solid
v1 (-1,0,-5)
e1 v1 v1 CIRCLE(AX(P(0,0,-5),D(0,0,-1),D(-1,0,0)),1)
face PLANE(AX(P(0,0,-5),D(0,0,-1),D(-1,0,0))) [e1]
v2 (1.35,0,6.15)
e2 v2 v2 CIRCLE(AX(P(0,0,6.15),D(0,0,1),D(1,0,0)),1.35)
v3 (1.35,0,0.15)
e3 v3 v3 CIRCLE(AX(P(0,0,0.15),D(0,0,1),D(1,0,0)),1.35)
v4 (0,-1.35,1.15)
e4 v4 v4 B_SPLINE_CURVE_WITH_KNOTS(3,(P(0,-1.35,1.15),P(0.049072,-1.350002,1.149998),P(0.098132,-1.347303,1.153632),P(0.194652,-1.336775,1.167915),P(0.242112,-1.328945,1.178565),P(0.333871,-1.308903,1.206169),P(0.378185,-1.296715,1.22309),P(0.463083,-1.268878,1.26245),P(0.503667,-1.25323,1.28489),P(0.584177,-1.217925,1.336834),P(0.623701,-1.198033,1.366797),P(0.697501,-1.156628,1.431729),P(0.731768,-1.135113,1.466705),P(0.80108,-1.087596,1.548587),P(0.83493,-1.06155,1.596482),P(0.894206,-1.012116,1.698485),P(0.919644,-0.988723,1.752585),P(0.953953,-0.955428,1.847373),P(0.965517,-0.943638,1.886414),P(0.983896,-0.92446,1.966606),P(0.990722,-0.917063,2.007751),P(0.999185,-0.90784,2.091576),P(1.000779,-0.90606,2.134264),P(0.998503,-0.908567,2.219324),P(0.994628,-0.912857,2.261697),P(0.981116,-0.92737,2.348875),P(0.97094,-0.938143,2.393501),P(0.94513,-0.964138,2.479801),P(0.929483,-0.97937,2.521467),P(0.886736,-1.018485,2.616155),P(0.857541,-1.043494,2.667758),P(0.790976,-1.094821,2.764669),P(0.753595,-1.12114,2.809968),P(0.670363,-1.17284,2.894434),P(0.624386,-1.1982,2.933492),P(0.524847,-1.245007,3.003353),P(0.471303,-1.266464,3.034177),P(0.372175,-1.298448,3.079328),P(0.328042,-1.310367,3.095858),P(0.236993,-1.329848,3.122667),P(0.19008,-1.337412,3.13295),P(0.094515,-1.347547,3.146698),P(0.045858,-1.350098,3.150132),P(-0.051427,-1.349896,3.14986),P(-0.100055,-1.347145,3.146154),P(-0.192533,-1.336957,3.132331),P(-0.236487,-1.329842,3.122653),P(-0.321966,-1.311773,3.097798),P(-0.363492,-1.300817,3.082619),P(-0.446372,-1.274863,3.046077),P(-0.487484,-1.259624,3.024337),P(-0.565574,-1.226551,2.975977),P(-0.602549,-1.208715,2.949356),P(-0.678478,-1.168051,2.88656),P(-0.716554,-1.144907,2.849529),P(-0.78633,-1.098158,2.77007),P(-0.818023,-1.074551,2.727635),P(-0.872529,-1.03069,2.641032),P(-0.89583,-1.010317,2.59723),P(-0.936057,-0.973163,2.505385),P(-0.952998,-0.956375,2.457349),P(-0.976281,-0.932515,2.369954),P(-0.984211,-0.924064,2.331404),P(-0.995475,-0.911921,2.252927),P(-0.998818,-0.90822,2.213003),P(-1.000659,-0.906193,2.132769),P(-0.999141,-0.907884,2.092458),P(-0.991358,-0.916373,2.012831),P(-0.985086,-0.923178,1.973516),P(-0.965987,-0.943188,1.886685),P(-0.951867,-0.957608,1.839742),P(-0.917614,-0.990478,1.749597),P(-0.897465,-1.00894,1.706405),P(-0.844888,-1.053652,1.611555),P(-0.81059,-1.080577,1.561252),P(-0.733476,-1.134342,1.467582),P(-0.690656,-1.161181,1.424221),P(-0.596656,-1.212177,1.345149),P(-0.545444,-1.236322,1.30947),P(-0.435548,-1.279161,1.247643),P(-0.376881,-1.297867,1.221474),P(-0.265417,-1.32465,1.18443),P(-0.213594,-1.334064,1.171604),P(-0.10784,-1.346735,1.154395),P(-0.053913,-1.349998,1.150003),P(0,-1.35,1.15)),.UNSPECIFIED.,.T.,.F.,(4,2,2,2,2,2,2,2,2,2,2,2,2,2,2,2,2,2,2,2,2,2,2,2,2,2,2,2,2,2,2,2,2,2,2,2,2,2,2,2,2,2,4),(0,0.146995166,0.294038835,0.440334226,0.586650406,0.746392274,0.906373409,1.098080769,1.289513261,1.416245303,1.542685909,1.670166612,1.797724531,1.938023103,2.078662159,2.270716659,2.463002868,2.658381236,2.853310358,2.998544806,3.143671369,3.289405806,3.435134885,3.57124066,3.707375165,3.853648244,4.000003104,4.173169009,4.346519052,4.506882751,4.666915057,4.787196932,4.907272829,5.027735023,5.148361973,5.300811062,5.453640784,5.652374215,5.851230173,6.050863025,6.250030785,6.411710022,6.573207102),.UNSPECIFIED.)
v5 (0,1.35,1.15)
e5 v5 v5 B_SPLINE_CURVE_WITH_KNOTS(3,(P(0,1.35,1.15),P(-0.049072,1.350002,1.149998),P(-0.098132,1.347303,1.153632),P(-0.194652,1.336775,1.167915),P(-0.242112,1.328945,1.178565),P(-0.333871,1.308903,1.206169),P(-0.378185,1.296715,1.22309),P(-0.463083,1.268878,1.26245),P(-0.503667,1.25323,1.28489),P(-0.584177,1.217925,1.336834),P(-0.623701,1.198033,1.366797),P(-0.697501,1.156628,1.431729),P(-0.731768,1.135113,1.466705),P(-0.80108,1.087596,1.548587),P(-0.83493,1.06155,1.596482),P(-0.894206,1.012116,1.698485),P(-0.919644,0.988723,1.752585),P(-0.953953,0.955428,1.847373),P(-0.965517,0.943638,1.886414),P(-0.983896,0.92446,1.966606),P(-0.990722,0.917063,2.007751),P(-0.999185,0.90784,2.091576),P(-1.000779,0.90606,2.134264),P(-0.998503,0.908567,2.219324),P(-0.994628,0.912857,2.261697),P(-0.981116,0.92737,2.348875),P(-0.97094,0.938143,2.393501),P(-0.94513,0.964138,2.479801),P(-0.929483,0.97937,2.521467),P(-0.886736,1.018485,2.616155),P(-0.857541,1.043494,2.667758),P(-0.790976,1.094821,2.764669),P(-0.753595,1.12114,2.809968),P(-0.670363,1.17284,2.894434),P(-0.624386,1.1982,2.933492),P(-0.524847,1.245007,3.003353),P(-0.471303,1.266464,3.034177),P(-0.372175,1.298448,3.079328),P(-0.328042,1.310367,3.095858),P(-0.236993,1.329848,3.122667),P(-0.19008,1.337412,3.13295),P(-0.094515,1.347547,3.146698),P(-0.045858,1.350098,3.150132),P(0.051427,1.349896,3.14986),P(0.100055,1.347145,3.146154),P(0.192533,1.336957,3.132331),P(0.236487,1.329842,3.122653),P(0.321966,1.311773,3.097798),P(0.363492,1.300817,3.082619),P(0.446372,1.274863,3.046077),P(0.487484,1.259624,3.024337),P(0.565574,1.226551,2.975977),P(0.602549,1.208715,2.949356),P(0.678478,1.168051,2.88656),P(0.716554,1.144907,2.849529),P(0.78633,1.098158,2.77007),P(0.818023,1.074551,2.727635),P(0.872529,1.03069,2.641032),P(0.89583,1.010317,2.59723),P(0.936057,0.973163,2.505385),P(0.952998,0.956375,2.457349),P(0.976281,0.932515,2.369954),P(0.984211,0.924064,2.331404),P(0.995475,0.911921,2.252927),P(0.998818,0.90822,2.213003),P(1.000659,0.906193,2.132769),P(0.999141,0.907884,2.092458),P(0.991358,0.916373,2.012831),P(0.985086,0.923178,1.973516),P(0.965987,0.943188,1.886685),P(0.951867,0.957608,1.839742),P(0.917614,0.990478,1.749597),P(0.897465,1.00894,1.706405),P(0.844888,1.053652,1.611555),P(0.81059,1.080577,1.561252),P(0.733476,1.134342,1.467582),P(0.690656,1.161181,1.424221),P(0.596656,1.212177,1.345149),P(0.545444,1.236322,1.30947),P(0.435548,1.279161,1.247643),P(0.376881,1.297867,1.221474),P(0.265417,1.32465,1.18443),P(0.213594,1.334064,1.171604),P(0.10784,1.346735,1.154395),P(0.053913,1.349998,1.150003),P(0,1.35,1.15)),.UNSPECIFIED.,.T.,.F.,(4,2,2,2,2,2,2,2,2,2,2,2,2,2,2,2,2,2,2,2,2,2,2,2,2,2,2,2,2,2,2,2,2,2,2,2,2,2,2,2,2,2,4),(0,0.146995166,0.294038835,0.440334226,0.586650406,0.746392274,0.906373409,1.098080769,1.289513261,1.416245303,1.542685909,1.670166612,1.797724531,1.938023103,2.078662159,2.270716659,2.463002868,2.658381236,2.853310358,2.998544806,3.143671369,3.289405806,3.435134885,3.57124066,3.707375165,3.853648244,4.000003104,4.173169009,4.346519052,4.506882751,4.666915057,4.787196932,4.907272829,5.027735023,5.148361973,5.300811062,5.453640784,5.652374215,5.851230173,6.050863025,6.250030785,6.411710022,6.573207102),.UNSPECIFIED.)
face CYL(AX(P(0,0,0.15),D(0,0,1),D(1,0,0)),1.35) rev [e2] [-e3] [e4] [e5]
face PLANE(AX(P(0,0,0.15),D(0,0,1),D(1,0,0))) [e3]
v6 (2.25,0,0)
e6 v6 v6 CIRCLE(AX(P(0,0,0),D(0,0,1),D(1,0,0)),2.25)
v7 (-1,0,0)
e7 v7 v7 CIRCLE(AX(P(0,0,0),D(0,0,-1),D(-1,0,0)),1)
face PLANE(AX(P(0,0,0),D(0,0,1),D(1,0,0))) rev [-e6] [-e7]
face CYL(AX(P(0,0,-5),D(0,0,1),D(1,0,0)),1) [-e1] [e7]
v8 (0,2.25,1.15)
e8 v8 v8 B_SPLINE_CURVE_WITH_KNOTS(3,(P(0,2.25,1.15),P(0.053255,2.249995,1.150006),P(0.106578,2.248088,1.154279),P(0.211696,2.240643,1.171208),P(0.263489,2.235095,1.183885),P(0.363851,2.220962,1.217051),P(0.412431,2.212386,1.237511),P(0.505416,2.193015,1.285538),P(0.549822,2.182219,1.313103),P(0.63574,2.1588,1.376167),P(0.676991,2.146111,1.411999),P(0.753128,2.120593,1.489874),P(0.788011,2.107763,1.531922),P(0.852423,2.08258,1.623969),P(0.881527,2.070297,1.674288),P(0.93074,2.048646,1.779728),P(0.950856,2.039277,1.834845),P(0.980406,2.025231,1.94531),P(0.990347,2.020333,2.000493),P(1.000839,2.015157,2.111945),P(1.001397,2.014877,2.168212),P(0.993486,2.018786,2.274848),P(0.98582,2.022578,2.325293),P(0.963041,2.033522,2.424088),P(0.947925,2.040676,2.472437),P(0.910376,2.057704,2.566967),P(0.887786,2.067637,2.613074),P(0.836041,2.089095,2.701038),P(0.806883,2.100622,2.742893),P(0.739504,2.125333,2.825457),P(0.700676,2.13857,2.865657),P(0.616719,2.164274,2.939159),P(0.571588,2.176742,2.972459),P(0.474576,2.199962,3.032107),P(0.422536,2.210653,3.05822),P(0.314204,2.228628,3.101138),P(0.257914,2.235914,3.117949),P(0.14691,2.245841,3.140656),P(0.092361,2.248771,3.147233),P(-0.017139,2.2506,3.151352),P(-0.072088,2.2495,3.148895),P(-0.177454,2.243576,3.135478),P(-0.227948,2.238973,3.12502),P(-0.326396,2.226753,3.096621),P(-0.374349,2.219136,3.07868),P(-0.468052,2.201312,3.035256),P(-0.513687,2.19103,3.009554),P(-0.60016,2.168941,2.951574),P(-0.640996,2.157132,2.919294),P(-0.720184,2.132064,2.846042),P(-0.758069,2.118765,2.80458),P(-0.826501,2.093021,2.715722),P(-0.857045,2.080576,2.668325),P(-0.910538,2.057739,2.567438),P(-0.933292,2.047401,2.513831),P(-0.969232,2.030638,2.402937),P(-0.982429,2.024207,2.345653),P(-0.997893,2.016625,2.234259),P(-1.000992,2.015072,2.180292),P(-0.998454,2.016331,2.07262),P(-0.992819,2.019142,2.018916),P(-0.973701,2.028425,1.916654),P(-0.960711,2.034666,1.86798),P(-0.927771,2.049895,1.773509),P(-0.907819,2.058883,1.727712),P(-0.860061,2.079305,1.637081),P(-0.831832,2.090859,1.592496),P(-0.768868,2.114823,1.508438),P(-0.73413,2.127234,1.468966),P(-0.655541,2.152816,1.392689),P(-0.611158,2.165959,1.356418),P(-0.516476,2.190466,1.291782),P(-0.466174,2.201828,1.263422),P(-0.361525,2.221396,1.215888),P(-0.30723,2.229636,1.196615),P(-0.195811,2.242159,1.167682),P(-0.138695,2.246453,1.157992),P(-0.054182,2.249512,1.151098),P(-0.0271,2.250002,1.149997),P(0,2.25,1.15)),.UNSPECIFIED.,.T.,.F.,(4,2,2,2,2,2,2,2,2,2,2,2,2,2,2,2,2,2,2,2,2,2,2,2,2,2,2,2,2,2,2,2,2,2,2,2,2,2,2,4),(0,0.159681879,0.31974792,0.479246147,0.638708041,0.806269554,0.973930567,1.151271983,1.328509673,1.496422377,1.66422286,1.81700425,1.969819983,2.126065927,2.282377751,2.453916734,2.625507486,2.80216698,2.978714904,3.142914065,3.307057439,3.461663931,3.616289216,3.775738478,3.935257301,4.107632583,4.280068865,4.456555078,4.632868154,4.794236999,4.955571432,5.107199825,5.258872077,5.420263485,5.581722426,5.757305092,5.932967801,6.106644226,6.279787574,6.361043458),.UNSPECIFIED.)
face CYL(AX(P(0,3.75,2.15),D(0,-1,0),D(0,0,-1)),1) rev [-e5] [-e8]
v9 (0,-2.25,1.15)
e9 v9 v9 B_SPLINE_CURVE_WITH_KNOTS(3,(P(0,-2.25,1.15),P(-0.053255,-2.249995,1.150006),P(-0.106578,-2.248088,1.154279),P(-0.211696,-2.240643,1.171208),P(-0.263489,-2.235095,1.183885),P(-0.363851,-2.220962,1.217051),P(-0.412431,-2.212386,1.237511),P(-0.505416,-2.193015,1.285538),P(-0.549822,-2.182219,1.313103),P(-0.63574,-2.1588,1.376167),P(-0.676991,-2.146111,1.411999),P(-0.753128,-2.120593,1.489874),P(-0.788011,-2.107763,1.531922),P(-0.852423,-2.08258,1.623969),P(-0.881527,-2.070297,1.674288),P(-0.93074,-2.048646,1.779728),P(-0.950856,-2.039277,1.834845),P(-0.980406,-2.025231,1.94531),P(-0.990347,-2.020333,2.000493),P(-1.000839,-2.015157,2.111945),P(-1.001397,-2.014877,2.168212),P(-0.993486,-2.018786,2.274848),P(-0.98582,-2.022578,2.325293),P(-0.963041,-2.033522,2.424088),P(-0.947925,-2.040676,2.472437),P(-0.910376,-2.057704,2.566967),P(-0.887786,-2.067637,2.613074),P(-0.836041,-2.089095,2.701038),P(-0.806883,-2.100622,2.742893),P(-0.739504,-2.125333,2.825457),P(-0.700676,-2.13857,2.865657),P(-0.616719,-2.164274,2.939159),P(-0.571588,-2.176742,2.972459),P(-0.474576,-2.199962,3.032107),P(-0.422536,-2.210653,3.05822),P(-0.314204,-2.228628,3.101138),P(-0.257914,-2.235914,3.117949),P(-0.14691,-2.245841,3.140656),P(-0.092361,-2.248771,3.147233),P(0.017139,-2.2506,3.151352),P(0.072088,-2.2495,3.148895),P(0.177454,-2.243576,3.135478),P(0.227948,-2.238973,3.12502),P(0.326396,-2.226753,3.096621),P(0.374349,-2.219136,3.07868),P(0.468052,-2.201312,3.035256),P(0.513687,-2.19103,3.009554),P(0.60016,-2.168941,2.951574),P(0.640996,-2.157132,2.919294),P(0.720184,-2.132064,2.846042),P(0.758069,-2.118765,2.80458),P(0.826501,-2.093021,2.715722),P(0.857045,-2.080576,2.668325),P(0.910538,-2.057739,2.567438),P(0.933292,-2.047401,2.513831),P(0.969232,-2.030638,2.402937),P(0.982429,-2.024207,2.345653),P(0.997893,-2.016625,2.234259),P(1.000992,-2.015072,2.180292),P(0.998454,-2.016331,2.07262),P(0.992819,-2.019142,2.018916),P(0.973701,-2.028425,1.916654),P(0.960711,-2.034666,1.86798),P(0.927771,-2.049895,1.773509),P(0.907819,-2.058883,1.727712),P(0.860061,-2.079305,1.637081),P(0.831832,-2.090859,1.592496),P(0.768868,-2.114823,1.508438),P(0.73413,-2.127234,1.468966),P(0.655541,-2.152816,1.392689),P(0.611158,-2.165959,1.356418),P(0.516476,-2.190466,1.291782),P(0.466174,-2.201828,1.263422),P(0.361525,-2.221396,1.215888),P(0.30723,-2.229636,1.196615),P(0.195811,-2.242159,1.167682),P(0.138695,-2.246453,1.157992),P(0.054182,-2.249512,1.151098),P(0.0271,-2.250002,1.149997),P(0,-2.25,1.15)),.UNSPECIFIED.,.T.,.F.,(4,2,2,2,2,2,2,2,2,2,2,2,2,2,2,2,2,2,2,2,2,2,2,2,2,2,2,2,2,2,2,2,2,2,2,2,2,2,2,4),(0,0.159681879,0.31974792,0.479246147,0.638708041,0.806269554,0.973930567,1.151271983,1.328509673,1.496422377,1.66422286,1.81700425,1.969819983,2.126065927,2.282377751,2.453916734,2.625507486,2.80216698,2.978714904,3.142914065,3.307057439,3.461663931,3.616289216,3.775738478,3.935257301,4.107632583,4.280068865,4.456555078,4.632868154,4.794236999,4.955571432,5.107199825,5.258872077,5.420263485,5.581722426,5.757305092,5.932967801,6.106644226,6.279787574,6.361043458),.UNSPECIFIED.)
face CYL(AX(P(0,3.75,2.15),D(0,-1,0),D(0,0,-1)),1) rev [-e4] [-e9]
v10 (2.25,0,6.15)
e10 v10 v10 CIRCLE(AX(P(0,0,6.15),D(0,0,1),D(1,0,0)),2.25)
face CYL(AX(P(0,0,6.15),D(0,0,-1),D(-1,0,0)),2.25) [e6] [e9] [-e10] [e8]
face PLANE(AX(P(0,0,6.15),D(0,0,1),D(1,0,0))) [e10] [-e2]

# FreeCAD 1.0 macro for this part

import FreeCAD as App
import Part
import Sketcher
Q = App.Units.Quantity

doc = App.newDocument("Part")
body = doc.addObject("PartDesign::Body", "Body")

# Sketch on XY plane
sketch1 = doc.addObject("Sketcher::SketchObject", "Sketch")
body.addObject(sketch1)
sketch1.AttachmentSupport = (doc.XY_Plane, [""])
sketch1.MapMode = "FlatFace"
sketch1.addGeometry(Part.Circle(App.Vector(0, 0, 0), App.Vector(0, 0, 1), 2.2), False)
sketch1.addConstraint([
    Sketcher.Constraint("Coincident", 0, 3, -1, 1),
    Sketcher.Constraint("Diameter", 0, Q("4.5 mm")),
])
pad1 = doc.addObject("PartDesign::Pad", "Pad")
body.addObject(pad1)
pad1.Profile = sketch1
pad1.Length = 6.15

# Sketch on XY plane
sketch2 = doc.addObject("Sketcher::SketchObject", "Sketch001")
body.addObject(sketch2)
sketch2.AttachmentSupport = (doc.XY_Plane, [""])
sketch2.MapMode = "FlatFace"
sketch2.addGeometry(Part.Circle(App.Vector(0, 0, 0), App.Vector(0, 0, 1), 1), False)
sketch2.addConstraint([
    Sketcher.Constraint("Coincident", 0, 3, -1, 1),
    Sketcher.Constraint("Diameter", 0, Q("2 mm")),
])
pad2 = doc.addObject("PartDesign::Pad", "Pad001")
body.addObject(pad2)
pad2.Profile = sketch2
pad2.Length = 5
pad2.Reversed = True

# Sketch on XY plane
sketch3 = doc.addObject("Sketcher::SketchObject", "Sketch002")
body.addObject(sketch3)
sketch3.AttachmentSupport = (doc.XY_Plane, [""])
sketch3.MapMode = "FlatFace"
sketch3.AttachmentOffset = App.Placement(App.Vector(0, 0, 6.15), App.Rotation())
sketch3.addGeometry(Part.Circle(App.Vector(0, 0, 0), App.Vector(0, 0, 1), 1.4), False)
sketch3.addConstraint([
    Sketcher.Constraint("Coincident", 0, 3, -1, 1),
    Sketcher.Constraint("Diameter", 0, Q("2.7 mm")),
])
pocket1 = doc.addObject("PartDesign::Pocket", "Pocket")
body.addObject(pocket1)
pocket1.Profile = sketch3
pocket1.Length = 6

# Sketch on XZ plane
sketch4 = doc.addObject("Sketcher::SketchObject", "Sketch003")
body.addObject(sketch4)
sketch4.AttachmentSupport = (doc.XZ_Plane, [""])
sketch4.MapMode = "FlatFace"
sketch4.AttachmentOffset = App.Placement(App.Vector(0, 0, 2.25), App.Rotation())
sketch4.addGeometry(Part.Circle(App.Vector(0, 2.1, 0), App.Vector(0, 0, 1), 1), False)
sketch4.addConstraint([
    Sketcher.Constraint("PointOnObject", 0, 3, -2),
    Sketcher.Constraint("Diameter", 0, Q("2 mm")),
    Sketcher.Constraint("DistanceY", -1, 1, 0, 3, Q("2.15 mm")),
])
pocket2 = doc.addObject("PartDesign::Pocket", "Pocket001")
body.addObject(pocket2)
pocket2.Profile = sketch4
pocket2.Length = 6

doc.recompute()
